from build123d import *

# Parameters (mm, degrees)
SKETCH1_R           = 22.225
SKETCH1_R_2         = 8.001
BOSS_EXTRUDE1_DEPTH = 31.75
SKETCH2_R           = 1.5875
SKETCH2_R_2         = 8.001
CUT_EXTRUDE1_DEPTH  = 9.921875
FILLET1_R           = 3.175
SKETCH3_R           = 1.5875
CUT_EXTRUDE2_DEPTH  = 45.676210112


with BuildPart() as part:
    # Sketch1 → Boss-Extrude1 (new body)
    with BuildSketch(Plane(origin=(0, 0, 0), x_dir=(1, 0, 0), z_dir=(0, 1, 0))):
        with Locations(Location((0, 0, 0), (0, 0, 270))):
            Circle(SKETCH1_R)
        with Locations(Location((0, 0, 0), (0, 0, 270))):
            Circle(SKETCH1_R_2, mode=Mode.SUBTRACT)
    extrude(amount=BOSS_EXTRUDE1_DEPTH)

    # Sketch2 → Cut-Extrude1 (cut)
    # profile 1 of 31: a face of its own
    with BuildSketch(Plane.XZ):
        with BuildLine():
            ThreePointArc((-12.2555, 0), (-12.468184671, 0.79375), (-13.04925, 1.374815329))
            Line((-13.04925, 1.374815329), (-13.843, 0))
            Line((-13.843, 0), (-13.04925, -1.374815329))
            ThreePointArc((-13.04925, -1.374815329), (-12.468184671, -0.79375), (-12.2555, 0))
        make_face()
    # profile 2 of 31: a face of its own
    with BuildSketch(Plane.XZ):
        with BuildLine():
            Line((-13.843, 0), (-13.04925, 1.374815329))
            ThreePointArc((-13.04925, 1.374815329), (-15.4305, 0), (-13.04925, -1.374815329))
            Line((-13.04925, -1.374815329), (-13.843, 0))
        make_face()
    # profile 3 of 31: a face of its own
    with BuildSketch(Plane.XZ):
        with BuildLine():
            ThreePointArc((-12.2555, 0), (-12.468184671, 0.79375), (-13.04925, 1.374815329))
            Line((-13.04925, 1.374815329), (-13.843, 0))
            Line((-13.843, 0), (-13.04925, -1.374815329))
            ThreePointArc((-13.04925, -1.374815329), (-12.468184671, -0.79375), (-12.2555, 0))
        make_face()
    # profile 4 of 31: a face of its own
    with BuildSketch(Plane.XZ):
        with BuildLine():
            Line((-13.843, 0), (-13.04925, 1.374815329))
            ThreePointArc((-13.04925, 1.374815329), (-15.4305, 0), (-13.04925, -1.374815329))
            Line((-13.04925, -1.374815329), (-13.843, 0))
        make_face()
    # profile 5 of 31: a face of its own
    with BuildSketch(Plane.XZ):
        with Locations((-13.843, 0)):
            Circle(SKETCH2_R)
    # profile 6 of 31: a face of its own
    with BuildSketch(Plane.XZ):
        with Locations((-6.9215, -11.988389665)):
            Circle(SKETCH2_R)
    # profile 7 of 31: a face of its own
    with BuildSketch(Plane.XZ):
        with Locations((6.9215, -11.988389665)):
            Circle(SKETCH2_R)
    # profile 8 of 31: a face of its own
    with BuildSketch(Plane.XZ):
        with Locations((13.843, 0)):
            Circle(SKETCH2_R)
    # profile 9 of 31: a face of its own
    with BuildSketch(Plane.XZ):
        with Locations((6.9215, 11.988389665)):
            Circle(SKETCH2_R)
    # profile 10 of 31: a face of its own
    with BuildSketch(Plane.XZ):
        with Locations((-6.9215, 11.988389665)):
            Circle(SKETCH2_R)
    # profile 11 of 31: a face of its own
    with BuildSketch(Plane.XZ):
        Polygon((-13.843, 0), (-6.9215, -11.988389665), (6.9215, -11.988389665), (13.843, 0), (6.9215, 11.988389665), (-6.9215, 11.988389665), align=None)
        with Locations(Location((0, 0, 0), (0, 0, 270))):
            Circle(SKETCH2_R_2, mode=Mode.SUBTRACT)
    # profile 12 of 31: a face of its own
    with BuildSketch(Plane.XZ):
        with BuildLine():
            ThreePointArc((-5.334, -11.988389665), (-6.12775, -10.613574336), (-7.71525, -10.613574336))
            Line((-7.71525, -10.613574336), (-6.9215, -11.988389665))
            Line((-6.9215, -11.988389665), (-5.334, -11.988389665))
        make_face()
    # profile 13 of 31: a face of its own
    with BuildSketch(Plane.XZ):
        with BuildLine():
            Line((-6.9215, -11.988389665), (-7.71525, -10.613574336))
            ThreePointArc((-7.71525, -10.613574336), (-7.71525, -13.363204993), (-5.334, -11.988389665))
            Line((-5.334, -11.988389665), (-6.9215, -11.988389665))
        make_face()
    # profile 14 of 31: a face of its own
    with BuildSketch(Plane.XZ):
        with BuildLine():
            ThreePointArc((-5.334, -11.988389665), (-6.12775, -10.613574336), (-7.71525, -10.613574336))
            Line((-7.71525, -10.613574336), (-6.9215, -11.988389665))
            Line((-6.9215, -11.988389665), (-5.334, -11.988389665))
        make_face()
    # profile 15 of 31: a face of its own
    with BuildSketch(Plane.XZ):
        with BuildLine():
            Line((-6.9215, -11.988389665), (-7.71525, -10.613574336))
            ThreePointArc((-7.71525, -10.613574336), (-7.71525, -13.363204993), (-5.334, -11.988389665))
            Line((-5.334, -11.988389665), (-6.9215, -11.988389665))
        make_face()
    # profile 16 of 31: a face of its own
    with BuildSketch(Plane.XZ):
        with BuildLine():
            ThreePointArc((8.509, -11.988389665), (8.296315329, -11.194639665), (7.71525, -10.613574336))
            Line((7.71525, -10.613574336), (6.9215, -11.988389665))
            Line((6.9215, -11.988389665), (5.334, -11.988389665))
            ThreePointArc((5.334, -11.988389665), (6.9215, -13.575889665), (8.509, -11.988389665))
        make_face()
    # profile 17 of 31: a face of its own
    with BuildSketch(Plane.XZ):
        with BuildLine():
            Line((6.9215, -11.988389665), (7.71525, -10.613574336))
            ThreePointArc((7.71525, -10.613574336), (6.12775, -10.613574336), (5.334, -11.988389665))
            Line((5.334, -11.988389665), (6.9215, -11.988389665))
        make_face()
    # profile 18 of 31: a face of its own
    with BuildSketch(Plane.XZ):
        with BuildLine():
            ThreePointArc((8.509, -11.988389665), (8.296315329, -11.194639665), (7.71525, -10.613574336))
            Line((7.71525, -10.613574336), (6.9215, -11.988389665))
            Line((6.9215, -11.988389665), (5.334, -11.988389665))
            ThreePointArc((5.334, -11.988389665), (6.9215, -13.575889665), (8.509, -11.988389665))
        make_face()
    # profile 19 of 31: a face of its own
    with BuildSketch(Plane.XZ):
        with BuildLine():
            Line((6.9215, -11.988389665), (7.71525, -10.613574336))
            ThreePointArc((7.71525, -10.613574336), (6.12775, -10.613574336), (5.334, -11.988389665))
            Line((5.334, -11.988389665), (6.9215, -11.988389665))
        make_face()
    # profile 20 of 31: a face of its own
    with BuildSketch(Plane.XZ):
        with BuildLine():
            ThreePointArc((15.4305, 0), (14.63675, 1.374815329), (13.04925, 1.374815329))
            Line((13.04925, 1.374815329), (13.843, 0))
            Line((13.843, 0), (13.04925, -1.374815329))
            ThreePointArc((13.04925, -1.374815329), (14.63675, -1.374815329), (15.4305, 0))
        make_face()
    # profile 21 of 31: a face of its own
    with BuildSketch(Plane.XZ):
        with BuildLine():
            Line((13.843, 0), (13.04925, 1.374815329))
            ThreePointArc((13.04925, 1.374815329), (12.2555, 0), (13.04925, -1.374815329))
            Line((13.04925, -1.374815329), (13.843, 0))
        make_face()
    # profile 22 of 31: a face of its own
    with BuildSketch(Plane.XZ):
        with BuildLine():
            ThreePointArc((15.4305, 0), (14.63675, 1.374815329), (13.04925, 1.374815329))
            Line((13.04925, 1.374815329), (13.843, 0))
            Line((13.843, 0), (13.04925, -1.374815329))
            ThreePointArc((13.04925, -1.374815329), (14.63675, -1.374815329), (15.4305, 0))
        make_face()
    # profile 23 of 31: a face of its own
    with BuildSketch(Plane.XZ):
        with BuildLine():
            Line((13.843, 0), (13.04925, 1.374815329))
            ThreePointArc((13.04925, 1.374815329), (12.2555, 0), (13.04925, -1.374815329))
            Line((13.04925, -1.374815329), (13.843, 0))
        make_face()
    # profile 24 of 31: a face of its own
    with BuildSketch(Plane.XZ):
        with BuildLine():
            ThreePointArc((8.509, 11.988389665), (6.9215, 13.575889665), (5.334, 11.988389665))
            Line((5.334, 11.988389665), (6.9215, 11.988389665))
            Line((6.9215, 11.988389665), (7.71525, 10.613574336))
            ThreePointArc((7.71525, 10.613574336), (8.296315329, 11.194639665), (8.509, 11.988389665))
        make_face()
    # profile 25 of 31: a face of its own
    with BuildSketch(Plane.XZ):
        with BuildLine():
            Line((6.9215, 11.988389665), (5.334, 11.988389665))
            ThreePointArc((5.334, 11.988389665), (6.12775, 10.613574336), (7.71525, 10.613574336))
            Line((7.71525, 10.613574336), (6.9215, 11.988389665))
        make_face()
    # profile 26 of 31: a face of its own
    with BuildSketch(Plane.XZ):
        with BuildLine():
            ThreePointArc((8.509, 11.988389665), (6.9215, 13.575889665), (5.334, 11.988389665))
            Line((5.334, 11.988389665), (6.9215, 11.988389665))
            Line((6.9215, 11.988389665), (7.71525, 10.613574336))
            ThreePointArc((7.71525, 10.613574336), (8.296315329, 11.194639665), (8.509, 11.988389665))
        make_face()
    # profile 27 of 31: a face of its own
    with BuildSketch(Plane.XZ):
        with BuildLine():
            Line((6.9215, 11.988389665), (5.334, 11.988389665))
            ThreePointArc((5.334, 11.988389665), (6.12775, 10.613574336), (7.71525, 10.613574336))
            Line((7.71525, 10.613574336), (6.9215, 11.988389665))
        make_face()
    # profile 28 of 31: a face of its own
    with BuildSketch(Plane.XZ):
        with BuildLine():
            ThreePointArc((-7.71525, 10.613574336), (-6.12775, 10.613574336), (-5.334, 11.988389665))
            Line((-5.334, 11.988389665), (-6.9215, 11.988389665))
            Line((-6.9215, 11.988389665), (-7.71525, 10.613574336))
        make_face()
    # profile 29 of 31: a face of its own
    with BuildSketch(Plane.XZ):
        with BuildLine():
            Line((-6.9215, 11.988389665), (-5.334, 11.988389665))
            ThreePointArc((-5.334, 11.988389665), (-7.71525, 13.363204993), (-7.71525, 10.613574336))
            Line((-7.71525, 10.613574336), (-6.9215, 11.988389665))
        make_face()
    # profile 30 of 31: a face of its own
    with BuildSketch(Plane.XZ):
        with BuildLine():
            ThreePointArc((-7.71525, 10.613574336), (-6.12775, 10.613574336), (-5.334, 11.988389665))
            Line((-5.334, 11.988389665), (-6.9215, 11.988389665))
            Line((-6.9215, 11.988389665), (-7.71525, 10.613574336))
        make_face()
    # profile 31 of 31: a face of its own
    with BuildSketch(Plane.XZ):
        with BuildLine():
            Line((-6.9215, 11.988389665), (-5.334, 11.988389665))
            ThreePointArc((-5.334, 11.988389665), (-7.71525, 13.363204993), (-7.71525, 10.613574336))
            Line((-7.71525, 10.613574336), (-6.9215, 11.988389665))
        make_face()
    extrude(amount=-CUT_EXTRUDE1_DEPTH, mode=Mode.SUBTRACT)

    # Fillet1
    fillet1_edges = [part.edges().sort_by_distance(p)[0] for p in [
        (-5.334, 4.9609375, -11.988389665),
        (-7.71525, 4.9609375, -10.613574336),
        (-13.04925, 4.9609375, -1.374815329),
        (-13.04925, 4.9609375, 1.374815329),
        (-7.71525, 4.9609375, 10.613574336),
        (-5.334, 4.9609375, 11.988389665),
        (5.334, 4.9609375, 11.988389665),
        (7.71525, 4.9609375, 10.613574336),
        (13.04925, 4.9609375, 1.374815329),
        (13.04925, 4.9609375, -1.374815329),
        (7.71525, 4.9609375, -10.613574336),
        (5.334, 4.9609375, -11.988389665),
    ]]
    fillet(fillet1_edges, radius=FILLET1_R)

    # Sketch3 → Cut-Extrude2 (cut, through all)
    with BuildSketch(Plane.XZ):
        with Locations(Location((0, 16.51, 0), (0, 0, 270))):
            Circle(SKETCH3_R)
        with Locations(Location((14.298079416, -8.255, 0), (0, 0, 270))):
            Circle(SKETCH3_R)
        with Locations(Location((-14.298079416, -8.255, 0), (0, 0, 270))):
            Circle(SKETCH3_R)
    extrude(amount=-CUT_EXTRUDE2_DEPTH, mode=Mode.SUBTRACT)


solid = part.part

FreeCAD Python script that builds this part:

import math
import FreeCAD as App
import Part
import Sketcher
from FreeCAD import Vector
Q = App.Units.Quantity


def edges_at(feature, points):
    """Names of the edges that pass closest to the given points."""
    edges = feature.Shape.Edges
    near = lambda p: min(range(len(edges)), key=lambda i: edges[i].distToShape(Part.Vertex(*p))[0])
    return sorted({f"Edge{near(p) + 1}" for p in points})

doc = App.newDocument("Part")
params = doc.addObject("Spreadsheet::Sheet", "Params")
for row, (alias, value) in enumerate([
    ("sketch1_diameter", "1.75 in"),
    ("sketch1_diameter2", "0.63 in"),
    ("pad1_length", "1.25 in"),
    ("sketch2_diameter", "0.63 in"),
    ("sketch2_radius", "0.0625 in"),
    ("sketch2_width", "0.42 in"),
    ("sketch2_length", "0.42 in"),
    ("pocket1_length", "0.390625 in"),
    ("fillet_radius", "0.125 in"),
    ("sketch3_diameter", "0.125 in"),
], start=1):
    params.set(f"A{row}", alias)
    params.set(f"B{row}", "=" + value)
    params.setAlias(f"B{row}", alias)

body = doc.addObject("PartDesign::Body", "Body")

# Sketch on XZ plane
sketch1 = body.newObject("Sketcher::SketchObject", "Sketch")
sketch1.AttachmentSupport = (doc.getObject("XZ_Plane"), [""])
sketch1.MapMode = "FlatFace"
sketch1.addGeometry([
    Part.Circle(Vector(0, 0, 0), Vector(0, 0, 1), 22),
    Part.Circle(Vector(0, 0, 0), Vector(0, 0, 1), 8),
], False)
sketch1.addConstraint([
    Sketcher.Constraint("Coincident", 0, 3, -1, 1),
    Sketcher.Constraint("Coincident", 1, 3, -1, 1),
    Sketcher.Constraint("Diameter", 0, Q("1.75 in")),
    Sketcher.Constraint("Diameter", 1, Q("0.63 in")),
])
sketch1.setExpression("Constraints[2]", "Params.sketch1_diameter")
sketch1.setExpression("Constraints[3]", "Params.sketch1_diameter2")
pad1 = body.newObject("PartDesign::Pad", "Pad")
pad1.Profile = sketch1
pad1.setExpression("Length", "Params.pad1_length")
pad1.Reversed = True

# Sketch on XZ plane
sketch2 = body.newObject("Sketcher::SketchObject", "Sketch001")
sketch2.AttachmentSupport = (doc.getObject("XZ_Plane"), [""])
sketch2.MapMode = "FlatFace"
sketch2.addGeometry([
    Part.LineSegment(Vector(-13, -1.4, 0), Vector(-7.7, -10.6, 0)),  # 0
    Part.ArcOfCircle(Part.Circle(Vector(-6.9, -12, 0), Vector(0, 0, 1), 1.6), math.radians(120), math.radians(360)),  # 1
    Part.LineSegment(Vector(-5.3, -12, 0), Vector(5.3, -12, 0)),  # 2
    Part.ArcOfCircle(Part.Circle(Vector(6.9, -12, 0), Vector(0, 0, 1), 1.6), math.radians(180), math.radians(420)),  # 3
    Part.LineSegment(Vector(7.7, -10.6, 0), Vector(13, -1.4, 0)),  # 4
    Part.ArcOfCircle(Part.Circle(Vector(13.8, 0, 0), Vector(0, 0, 1), 1.6), math.radians(-120), math.radians(120)),  # 5
    Part.LineSegment(Vector(13, 1.4, 0), Vector(7.7, 10.6, 0)),  # 6
    Part.ArcOfCircle(Part.Circle(Vector(6.9, 12, 0), Vector(0, 0, 1), 1.6), math.radians(-60), math.radians(180)),  # 7
    Part.LineSegment(Vector(5.3, 12, 0), Vector(-5.3, 12, 0)),  # 8
    Part.ArcOfCircle(Part.Circle(Vector(-6.9, 12, 0), Vector(0, 0, 1), 1.6), math.radians(0), math.radians(240)),  # 9
    Part.LineSegment(Vector(-7.7, 10.6, 0), Vector(-13, 1.4, 0)),  # 10
    Part.ArcOfCircle(Part.Circle(Vector(-13.8, 0, 0), Vector(0, 0, 1), 1.6), math.radians(60), math.radians(300)),  # 11
    Part.Circle(Vector(0, 0, 0), Vector(0, 0, 1), 8),  # 12
], False)
sketch2.addConstraint([
    Sketcher.Constraint("Coincident", 0, 2, 1, 1),
    Sketcher.Constraint("Coincident", 1, 2, 2, 1),
    Sketcher.Constraint("Coincident", 2, 2, 3, 1),
    Sketcher.Constraint("Coincident", 3, 2, 4, 1),
    Sketcher.Constraint("Coincident", 4, 2, 5, 1),
    Sketcher.Constraint("Coincident", 5, 2, 6, 1),
    Sketcher.Constraint("Coincident", 6, 2, 7, 1),
    Sketcher.Constraint("Coincident", 7, 2, 8, 1),
    Sketcher.Constraint("Coincident", 8, 2, 9, 1),
    Sketcher.Constraint("Coincident", 9, 2, 10, 1),
    Sketcher.Constraint("Coincident", 10, 2, 11, 1),
    Sketcher.Constraint("Coincident", 11, 2, 0, 1),
    Sketcher.Constraint("Horizontal", 2),
    Sketcher.Constraint("Horizontal", 8),
    Sketcher.Constraint("Coincident", 12, 3, -1, 1),
    Sketcher.Constraint("Equal", 1, 3),
    Sketcher.Constraint("Equal", 3, 5),
    Sketcher.Constraint("Equal", 5, 7),
    Sketcher.Constraint("Equal", 7, 9),
    Sketcher.Constraint("Equal", 9, 11),
    Sketcher.Constraint("Symmetric", 1, 3, 7, 3, -1, 1),
    Sketcher.Constraint("Symmetric", 3, 3, 9, 3, -1, 1),
    Sketcher.Constraint("Symmetric", 5, 3, 11, 3, -1, 1),
    Sketcher.Constraint("Symmetric", 1, 3, 3, 3, -2),
    Sketcher.Constraint("Symmetric", 5, 2, 10, 2, -2),
    Sketcher.Constraint("Parallel", 0, 6),
    Sketcher.Constraint("Parallel", 4, 10),
    Sketcher.Constraint("Horizontal", 3, 3, 1, 2),
    Sketcher.Constraint("Horizontal", 0, 2, 3, 2),
    Sketcher.Constraint("Horizontal", 9, 3, 7, 2),
    Sketcher.Constraint("Horizontal", 6, 2, 9, 2),
    Sketcher.Constraint("Vertical", 4, 2, 5, 2),
    Sketcher.Constraint("Diameter", 12, Q("0.63 in")),
    Sketcher.Constraint("Angle", 0, Q("-60 deg")),
    Sketcher.Constraint("Radius", 1, Q("0.0625 in")),
    Sketcher.Constraint("DistanceX", 2, 1, 2, 2, Q("0.42 in")),
    Sketcher.Constraint("Distance", 0, Q("0.42 in")),
    Sketcher.Constraint("DistanceX", 11, 3, 5, 3, Q("1.09 in")),
    Sketcher.Constraint("DistanceX", 0, 2, 1, 3, Q("0.03125 in")),
])
sketch2.setExpression("Constraints[32]", "Params.sketch2_diameter")
sketch2.setExpression("Constraints[34]", "Params.sketch2_radius")
sketch2.setExpression("Constraints[35]", "Params.sketch2_width")
sketch2.setExpression("Constraints[36]", "Params.sketch2_length")
pocket1 = body.newObject("PartDesign::Pocket", "Pocket")
pocket1.Profile = sketch2
pocket1.setExpression("Length", "Params.pocket1_length")
doc.recompute()

fillet = body.newObject("PartDesign::Fillet", "Fillet")
fillet.Base = (pocket1, edges_at(pocket1, [
    (-5.334, 4.961, -11.988),
    (-7.715, 4.961, -10.614),
    (-13.049, 4.961, -1.375),
    (-13.049, 4.961, 1.375),
    (-7.715, 4.961, 10.614),
    (-5.334, 4.961, 11.988),
    (5.334, 4.961, 11.988),
    (7.715, 4.961, 10.614),
    (13.049, 4.961, 1.375),
    (13.049, 4.961, -1.375),
    (7.715, 4.961, -10.614),
    (5.334, 4.961, -11.988),
]))
fillet.setExpression("Radius", "Params.fillet_radius")

# Sketch on XZ plane
sketch3 = body.newObject("Sketcher::SketchObject", "Sketch002")
sketch3.AttachmentSupport = (doc.getObject("XZ_Plane"), [""])
sketch3.MapMode = "FlatFace"
sketch3.addGeometry([
    Part.Circle(Vector(0, 16.5, 0), Vector(0, 0, 1), 1.6),
    Part.Circle(Vector(14.3, -8.3, 0), Vector(0, 0, 1), 1.6),
    Part.Circle(Vector(-14.3, -8.3, 0), Vector(0, 0, 1), 1.6),
], False)
sketch3.addConstraint([
    Sketcher.Constraint("Equal", 0, 1),
    Sketcher.Constraint("Equal", 1, 2),
    Sketcher.Constraint("Symmetric", 1, 3, 2, 3, -2),
    Sketcher.Constraint("PointOnObject", 0, 3, -2),
    Sketcher.Constraint("Diameter", 0, Q("0.125 in")),
    Sketcher.Constraint("DistanceY", -1, 1, 0, 3, Q("0.65 in")),
    Sketcher.Constraint("DistanceY", 1, 3, -1, 1, Q("0.325 in")),
    Sketcher.Constraint("DistanceX", -1, 1, 1, 3, Q("14.298079 mm")),
])
sketch3.setExpression("Constraints[4]", "Params.sketch3_diameter")
pocket2 = body.newObject("PartDesign::Pocket", "Pocket001")
pocket2.Profile = sketch3
pocket2.Type = "ThroughAll"

doc.recompute()
